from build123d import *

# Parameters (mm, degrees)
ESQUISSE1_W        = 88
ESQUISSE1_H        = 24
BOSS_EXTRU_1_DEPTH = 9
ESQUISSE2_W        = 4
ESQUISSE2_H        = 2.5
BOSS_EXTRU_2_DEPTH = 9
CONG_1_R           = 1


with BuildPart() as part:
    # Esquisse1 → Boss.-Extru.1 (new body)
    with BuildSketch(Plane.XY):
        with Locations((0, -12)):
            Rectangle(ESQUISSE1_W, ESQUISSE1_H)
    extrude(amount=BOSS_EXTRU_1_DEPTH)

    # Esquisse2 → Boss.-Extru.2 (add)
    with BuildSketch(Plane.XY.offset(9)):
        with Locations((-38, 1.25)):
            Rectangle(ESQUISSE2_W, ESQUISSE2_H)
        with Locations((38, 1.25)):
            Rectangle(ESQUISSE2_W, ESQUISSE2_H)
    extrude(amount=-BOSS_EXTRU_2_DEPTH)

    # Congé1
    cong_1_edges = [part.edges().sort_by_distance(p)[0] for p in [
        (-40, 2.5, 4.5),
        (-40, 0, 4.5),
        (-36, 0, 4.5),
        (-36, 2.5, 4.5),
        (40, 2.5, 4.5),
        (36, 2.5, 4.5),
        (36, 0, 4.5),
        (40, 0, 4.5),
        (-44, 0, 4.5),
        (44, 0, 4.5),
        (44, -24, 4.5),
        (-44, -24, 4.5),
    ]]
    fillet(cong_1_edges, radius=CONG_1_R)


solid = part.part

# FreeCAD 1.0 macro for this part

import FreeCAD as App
import Part
import Sketcher
from FreeCAD import Vector
Q = App.Units.Quantity


def edges_at(feature, points):
    """Names of the edges that pass closest to the given points."""
    edges = feature.Shape.Edges
    near = lambda p: min(range(len(edges)), key=lambda i: edges[i].distToShape(Part.Vertex(*p))[0])
    return sorted({f"Edge{near(p) + 1}" for p in points})


def add_polygon(sketch, points):
    """Adds a closed chain of lines whose ends are joined by coincident constraints."""
    first, n = sketch.GeometryCount, len(points)
    for a, b in zip(points, points[1:] + points[:1]):
        sketch.addGeometry(Part.LineSegment(App.Vector(*a, 0), App.Vector(*b, 0)), False)
    for i in range(n):
        sketch.addConstraint(Sketcher.Constraint("Coincident", first + i, 2, first + (i + 1) % n, 1))

doc = App.newDocument("Part")
body = doc.addObject("PartDesign::Body", "Body")

sketch1 = body.newObject("Sketcher::SketchObject", "Sketch")
sketch1.AttachmentSupport = (doc.getObject("XY_Plane"), [""])
sketch1.MapMode = "FlatFace"
add_polygon(sketch1, [(-44, 0), (-44, -24), (44, -24), (44, 0)])
sketch1.addConstraint([
    Sketcher.Constraint("Vertical", 0),
    Sketcher.Constraint("Horizontal", 1),
    Sketcher.Constraint("Vertical", 2),
    Sketcher.Constraint("Horizontal", 3),
    Sketcher.Constraint("Symmetric", 2, 2, 3, 2, -1, 1),
    Sketcher.Constraint("DistanceX", 1, 1, 1, 2, Q("88 mm")),
    Sketcher.Constraint("DistanceY", 0, 2, 0, 1, Q("24 mm")),
])
pad1 = body.newObject("PartDesign::Pad", "Pad")
pad1.Profile = sketch1
pad1.Length = 9

sketch2 = body.newObject("Sketcher::SketchObject", "Sketch001")
sketch2.AttachmentSupport = (doc.getObject("XY_Plane"), [""])
sketch2.MapMode = "FlatFace"
sketch2.AttachmentOffset = App.Placement(Vector(0, 0, 9), App.Rotation())
add_polygon(sketch2, [(-40, 2.5), (-40, 0), (-36, 0), (-36, 2.5)])
add_polygon(sketch2, [(36, 2.5), (36, 0), (40, 0), (40, 2.5)])
sketch2.addConstraint([
    Sketcher.Constraint("Vertical", 0),
    Sketcher.Constraint("Horizontal", 1),
    Sketcher.Constraint("Vertical", 2),
    Sketcher.Constraint("Horizontal", 3),
    Sketcher.Constraint("Vertical", 4),
    Sketcher.Constraint("Horizontal", 5),
    Sketcher.Constraint("Vertical", 6),
    Sketcher.Constraint("Horizontal", 7),
    Sketcher.Constraint("Symmetric", 1, 2, 4, 2, -1, 1),
    Sketcher.Constraint("Symmetric", 0, 2, 5, 2, -2),
    Sketcher.Constraint("Horizontal", 3, 2, 6, 2),
    Sketcher.Constraint("DistanceX", 1, 1, 1, 2, Q("4 mm")),
    Sketcher.Constraint("DistanceY", 0, 2, 0, 1, Q("2.5 mm")),
    Sketcher.Constraint("DistanceX", 0, 2, -1, 1, Q("40 mm")),
])
pad2 = body.newObject("PartDesign::Pad", "Pad001")
pad2.Profile = sketch2
pad2.Length = 9
pad2.Reversed = True
doc.recompute()

fillet = body.newObject("PartDesign::Fillet", "Fillet")
fillet.Base = (pad2, edges_at(pad2, [
    (-40, 2.5, 4.5),
    (-40, 0, 4.5),
    (-36, 0, 4.5),
    (-36, 2.5, 4.5),
    (40, 2.5, 4.5),
    (36, 2.5, 4.5),
    (36, 0, 4.5),
    (40, 0, 4.5),
    (-44, 0, 4.5),
    (44, 0, 4.5),
    (44, -24, 4.5),
    (-44, -24, 4.5),
]))
fillet.Radius = 1

doc.recompute()
